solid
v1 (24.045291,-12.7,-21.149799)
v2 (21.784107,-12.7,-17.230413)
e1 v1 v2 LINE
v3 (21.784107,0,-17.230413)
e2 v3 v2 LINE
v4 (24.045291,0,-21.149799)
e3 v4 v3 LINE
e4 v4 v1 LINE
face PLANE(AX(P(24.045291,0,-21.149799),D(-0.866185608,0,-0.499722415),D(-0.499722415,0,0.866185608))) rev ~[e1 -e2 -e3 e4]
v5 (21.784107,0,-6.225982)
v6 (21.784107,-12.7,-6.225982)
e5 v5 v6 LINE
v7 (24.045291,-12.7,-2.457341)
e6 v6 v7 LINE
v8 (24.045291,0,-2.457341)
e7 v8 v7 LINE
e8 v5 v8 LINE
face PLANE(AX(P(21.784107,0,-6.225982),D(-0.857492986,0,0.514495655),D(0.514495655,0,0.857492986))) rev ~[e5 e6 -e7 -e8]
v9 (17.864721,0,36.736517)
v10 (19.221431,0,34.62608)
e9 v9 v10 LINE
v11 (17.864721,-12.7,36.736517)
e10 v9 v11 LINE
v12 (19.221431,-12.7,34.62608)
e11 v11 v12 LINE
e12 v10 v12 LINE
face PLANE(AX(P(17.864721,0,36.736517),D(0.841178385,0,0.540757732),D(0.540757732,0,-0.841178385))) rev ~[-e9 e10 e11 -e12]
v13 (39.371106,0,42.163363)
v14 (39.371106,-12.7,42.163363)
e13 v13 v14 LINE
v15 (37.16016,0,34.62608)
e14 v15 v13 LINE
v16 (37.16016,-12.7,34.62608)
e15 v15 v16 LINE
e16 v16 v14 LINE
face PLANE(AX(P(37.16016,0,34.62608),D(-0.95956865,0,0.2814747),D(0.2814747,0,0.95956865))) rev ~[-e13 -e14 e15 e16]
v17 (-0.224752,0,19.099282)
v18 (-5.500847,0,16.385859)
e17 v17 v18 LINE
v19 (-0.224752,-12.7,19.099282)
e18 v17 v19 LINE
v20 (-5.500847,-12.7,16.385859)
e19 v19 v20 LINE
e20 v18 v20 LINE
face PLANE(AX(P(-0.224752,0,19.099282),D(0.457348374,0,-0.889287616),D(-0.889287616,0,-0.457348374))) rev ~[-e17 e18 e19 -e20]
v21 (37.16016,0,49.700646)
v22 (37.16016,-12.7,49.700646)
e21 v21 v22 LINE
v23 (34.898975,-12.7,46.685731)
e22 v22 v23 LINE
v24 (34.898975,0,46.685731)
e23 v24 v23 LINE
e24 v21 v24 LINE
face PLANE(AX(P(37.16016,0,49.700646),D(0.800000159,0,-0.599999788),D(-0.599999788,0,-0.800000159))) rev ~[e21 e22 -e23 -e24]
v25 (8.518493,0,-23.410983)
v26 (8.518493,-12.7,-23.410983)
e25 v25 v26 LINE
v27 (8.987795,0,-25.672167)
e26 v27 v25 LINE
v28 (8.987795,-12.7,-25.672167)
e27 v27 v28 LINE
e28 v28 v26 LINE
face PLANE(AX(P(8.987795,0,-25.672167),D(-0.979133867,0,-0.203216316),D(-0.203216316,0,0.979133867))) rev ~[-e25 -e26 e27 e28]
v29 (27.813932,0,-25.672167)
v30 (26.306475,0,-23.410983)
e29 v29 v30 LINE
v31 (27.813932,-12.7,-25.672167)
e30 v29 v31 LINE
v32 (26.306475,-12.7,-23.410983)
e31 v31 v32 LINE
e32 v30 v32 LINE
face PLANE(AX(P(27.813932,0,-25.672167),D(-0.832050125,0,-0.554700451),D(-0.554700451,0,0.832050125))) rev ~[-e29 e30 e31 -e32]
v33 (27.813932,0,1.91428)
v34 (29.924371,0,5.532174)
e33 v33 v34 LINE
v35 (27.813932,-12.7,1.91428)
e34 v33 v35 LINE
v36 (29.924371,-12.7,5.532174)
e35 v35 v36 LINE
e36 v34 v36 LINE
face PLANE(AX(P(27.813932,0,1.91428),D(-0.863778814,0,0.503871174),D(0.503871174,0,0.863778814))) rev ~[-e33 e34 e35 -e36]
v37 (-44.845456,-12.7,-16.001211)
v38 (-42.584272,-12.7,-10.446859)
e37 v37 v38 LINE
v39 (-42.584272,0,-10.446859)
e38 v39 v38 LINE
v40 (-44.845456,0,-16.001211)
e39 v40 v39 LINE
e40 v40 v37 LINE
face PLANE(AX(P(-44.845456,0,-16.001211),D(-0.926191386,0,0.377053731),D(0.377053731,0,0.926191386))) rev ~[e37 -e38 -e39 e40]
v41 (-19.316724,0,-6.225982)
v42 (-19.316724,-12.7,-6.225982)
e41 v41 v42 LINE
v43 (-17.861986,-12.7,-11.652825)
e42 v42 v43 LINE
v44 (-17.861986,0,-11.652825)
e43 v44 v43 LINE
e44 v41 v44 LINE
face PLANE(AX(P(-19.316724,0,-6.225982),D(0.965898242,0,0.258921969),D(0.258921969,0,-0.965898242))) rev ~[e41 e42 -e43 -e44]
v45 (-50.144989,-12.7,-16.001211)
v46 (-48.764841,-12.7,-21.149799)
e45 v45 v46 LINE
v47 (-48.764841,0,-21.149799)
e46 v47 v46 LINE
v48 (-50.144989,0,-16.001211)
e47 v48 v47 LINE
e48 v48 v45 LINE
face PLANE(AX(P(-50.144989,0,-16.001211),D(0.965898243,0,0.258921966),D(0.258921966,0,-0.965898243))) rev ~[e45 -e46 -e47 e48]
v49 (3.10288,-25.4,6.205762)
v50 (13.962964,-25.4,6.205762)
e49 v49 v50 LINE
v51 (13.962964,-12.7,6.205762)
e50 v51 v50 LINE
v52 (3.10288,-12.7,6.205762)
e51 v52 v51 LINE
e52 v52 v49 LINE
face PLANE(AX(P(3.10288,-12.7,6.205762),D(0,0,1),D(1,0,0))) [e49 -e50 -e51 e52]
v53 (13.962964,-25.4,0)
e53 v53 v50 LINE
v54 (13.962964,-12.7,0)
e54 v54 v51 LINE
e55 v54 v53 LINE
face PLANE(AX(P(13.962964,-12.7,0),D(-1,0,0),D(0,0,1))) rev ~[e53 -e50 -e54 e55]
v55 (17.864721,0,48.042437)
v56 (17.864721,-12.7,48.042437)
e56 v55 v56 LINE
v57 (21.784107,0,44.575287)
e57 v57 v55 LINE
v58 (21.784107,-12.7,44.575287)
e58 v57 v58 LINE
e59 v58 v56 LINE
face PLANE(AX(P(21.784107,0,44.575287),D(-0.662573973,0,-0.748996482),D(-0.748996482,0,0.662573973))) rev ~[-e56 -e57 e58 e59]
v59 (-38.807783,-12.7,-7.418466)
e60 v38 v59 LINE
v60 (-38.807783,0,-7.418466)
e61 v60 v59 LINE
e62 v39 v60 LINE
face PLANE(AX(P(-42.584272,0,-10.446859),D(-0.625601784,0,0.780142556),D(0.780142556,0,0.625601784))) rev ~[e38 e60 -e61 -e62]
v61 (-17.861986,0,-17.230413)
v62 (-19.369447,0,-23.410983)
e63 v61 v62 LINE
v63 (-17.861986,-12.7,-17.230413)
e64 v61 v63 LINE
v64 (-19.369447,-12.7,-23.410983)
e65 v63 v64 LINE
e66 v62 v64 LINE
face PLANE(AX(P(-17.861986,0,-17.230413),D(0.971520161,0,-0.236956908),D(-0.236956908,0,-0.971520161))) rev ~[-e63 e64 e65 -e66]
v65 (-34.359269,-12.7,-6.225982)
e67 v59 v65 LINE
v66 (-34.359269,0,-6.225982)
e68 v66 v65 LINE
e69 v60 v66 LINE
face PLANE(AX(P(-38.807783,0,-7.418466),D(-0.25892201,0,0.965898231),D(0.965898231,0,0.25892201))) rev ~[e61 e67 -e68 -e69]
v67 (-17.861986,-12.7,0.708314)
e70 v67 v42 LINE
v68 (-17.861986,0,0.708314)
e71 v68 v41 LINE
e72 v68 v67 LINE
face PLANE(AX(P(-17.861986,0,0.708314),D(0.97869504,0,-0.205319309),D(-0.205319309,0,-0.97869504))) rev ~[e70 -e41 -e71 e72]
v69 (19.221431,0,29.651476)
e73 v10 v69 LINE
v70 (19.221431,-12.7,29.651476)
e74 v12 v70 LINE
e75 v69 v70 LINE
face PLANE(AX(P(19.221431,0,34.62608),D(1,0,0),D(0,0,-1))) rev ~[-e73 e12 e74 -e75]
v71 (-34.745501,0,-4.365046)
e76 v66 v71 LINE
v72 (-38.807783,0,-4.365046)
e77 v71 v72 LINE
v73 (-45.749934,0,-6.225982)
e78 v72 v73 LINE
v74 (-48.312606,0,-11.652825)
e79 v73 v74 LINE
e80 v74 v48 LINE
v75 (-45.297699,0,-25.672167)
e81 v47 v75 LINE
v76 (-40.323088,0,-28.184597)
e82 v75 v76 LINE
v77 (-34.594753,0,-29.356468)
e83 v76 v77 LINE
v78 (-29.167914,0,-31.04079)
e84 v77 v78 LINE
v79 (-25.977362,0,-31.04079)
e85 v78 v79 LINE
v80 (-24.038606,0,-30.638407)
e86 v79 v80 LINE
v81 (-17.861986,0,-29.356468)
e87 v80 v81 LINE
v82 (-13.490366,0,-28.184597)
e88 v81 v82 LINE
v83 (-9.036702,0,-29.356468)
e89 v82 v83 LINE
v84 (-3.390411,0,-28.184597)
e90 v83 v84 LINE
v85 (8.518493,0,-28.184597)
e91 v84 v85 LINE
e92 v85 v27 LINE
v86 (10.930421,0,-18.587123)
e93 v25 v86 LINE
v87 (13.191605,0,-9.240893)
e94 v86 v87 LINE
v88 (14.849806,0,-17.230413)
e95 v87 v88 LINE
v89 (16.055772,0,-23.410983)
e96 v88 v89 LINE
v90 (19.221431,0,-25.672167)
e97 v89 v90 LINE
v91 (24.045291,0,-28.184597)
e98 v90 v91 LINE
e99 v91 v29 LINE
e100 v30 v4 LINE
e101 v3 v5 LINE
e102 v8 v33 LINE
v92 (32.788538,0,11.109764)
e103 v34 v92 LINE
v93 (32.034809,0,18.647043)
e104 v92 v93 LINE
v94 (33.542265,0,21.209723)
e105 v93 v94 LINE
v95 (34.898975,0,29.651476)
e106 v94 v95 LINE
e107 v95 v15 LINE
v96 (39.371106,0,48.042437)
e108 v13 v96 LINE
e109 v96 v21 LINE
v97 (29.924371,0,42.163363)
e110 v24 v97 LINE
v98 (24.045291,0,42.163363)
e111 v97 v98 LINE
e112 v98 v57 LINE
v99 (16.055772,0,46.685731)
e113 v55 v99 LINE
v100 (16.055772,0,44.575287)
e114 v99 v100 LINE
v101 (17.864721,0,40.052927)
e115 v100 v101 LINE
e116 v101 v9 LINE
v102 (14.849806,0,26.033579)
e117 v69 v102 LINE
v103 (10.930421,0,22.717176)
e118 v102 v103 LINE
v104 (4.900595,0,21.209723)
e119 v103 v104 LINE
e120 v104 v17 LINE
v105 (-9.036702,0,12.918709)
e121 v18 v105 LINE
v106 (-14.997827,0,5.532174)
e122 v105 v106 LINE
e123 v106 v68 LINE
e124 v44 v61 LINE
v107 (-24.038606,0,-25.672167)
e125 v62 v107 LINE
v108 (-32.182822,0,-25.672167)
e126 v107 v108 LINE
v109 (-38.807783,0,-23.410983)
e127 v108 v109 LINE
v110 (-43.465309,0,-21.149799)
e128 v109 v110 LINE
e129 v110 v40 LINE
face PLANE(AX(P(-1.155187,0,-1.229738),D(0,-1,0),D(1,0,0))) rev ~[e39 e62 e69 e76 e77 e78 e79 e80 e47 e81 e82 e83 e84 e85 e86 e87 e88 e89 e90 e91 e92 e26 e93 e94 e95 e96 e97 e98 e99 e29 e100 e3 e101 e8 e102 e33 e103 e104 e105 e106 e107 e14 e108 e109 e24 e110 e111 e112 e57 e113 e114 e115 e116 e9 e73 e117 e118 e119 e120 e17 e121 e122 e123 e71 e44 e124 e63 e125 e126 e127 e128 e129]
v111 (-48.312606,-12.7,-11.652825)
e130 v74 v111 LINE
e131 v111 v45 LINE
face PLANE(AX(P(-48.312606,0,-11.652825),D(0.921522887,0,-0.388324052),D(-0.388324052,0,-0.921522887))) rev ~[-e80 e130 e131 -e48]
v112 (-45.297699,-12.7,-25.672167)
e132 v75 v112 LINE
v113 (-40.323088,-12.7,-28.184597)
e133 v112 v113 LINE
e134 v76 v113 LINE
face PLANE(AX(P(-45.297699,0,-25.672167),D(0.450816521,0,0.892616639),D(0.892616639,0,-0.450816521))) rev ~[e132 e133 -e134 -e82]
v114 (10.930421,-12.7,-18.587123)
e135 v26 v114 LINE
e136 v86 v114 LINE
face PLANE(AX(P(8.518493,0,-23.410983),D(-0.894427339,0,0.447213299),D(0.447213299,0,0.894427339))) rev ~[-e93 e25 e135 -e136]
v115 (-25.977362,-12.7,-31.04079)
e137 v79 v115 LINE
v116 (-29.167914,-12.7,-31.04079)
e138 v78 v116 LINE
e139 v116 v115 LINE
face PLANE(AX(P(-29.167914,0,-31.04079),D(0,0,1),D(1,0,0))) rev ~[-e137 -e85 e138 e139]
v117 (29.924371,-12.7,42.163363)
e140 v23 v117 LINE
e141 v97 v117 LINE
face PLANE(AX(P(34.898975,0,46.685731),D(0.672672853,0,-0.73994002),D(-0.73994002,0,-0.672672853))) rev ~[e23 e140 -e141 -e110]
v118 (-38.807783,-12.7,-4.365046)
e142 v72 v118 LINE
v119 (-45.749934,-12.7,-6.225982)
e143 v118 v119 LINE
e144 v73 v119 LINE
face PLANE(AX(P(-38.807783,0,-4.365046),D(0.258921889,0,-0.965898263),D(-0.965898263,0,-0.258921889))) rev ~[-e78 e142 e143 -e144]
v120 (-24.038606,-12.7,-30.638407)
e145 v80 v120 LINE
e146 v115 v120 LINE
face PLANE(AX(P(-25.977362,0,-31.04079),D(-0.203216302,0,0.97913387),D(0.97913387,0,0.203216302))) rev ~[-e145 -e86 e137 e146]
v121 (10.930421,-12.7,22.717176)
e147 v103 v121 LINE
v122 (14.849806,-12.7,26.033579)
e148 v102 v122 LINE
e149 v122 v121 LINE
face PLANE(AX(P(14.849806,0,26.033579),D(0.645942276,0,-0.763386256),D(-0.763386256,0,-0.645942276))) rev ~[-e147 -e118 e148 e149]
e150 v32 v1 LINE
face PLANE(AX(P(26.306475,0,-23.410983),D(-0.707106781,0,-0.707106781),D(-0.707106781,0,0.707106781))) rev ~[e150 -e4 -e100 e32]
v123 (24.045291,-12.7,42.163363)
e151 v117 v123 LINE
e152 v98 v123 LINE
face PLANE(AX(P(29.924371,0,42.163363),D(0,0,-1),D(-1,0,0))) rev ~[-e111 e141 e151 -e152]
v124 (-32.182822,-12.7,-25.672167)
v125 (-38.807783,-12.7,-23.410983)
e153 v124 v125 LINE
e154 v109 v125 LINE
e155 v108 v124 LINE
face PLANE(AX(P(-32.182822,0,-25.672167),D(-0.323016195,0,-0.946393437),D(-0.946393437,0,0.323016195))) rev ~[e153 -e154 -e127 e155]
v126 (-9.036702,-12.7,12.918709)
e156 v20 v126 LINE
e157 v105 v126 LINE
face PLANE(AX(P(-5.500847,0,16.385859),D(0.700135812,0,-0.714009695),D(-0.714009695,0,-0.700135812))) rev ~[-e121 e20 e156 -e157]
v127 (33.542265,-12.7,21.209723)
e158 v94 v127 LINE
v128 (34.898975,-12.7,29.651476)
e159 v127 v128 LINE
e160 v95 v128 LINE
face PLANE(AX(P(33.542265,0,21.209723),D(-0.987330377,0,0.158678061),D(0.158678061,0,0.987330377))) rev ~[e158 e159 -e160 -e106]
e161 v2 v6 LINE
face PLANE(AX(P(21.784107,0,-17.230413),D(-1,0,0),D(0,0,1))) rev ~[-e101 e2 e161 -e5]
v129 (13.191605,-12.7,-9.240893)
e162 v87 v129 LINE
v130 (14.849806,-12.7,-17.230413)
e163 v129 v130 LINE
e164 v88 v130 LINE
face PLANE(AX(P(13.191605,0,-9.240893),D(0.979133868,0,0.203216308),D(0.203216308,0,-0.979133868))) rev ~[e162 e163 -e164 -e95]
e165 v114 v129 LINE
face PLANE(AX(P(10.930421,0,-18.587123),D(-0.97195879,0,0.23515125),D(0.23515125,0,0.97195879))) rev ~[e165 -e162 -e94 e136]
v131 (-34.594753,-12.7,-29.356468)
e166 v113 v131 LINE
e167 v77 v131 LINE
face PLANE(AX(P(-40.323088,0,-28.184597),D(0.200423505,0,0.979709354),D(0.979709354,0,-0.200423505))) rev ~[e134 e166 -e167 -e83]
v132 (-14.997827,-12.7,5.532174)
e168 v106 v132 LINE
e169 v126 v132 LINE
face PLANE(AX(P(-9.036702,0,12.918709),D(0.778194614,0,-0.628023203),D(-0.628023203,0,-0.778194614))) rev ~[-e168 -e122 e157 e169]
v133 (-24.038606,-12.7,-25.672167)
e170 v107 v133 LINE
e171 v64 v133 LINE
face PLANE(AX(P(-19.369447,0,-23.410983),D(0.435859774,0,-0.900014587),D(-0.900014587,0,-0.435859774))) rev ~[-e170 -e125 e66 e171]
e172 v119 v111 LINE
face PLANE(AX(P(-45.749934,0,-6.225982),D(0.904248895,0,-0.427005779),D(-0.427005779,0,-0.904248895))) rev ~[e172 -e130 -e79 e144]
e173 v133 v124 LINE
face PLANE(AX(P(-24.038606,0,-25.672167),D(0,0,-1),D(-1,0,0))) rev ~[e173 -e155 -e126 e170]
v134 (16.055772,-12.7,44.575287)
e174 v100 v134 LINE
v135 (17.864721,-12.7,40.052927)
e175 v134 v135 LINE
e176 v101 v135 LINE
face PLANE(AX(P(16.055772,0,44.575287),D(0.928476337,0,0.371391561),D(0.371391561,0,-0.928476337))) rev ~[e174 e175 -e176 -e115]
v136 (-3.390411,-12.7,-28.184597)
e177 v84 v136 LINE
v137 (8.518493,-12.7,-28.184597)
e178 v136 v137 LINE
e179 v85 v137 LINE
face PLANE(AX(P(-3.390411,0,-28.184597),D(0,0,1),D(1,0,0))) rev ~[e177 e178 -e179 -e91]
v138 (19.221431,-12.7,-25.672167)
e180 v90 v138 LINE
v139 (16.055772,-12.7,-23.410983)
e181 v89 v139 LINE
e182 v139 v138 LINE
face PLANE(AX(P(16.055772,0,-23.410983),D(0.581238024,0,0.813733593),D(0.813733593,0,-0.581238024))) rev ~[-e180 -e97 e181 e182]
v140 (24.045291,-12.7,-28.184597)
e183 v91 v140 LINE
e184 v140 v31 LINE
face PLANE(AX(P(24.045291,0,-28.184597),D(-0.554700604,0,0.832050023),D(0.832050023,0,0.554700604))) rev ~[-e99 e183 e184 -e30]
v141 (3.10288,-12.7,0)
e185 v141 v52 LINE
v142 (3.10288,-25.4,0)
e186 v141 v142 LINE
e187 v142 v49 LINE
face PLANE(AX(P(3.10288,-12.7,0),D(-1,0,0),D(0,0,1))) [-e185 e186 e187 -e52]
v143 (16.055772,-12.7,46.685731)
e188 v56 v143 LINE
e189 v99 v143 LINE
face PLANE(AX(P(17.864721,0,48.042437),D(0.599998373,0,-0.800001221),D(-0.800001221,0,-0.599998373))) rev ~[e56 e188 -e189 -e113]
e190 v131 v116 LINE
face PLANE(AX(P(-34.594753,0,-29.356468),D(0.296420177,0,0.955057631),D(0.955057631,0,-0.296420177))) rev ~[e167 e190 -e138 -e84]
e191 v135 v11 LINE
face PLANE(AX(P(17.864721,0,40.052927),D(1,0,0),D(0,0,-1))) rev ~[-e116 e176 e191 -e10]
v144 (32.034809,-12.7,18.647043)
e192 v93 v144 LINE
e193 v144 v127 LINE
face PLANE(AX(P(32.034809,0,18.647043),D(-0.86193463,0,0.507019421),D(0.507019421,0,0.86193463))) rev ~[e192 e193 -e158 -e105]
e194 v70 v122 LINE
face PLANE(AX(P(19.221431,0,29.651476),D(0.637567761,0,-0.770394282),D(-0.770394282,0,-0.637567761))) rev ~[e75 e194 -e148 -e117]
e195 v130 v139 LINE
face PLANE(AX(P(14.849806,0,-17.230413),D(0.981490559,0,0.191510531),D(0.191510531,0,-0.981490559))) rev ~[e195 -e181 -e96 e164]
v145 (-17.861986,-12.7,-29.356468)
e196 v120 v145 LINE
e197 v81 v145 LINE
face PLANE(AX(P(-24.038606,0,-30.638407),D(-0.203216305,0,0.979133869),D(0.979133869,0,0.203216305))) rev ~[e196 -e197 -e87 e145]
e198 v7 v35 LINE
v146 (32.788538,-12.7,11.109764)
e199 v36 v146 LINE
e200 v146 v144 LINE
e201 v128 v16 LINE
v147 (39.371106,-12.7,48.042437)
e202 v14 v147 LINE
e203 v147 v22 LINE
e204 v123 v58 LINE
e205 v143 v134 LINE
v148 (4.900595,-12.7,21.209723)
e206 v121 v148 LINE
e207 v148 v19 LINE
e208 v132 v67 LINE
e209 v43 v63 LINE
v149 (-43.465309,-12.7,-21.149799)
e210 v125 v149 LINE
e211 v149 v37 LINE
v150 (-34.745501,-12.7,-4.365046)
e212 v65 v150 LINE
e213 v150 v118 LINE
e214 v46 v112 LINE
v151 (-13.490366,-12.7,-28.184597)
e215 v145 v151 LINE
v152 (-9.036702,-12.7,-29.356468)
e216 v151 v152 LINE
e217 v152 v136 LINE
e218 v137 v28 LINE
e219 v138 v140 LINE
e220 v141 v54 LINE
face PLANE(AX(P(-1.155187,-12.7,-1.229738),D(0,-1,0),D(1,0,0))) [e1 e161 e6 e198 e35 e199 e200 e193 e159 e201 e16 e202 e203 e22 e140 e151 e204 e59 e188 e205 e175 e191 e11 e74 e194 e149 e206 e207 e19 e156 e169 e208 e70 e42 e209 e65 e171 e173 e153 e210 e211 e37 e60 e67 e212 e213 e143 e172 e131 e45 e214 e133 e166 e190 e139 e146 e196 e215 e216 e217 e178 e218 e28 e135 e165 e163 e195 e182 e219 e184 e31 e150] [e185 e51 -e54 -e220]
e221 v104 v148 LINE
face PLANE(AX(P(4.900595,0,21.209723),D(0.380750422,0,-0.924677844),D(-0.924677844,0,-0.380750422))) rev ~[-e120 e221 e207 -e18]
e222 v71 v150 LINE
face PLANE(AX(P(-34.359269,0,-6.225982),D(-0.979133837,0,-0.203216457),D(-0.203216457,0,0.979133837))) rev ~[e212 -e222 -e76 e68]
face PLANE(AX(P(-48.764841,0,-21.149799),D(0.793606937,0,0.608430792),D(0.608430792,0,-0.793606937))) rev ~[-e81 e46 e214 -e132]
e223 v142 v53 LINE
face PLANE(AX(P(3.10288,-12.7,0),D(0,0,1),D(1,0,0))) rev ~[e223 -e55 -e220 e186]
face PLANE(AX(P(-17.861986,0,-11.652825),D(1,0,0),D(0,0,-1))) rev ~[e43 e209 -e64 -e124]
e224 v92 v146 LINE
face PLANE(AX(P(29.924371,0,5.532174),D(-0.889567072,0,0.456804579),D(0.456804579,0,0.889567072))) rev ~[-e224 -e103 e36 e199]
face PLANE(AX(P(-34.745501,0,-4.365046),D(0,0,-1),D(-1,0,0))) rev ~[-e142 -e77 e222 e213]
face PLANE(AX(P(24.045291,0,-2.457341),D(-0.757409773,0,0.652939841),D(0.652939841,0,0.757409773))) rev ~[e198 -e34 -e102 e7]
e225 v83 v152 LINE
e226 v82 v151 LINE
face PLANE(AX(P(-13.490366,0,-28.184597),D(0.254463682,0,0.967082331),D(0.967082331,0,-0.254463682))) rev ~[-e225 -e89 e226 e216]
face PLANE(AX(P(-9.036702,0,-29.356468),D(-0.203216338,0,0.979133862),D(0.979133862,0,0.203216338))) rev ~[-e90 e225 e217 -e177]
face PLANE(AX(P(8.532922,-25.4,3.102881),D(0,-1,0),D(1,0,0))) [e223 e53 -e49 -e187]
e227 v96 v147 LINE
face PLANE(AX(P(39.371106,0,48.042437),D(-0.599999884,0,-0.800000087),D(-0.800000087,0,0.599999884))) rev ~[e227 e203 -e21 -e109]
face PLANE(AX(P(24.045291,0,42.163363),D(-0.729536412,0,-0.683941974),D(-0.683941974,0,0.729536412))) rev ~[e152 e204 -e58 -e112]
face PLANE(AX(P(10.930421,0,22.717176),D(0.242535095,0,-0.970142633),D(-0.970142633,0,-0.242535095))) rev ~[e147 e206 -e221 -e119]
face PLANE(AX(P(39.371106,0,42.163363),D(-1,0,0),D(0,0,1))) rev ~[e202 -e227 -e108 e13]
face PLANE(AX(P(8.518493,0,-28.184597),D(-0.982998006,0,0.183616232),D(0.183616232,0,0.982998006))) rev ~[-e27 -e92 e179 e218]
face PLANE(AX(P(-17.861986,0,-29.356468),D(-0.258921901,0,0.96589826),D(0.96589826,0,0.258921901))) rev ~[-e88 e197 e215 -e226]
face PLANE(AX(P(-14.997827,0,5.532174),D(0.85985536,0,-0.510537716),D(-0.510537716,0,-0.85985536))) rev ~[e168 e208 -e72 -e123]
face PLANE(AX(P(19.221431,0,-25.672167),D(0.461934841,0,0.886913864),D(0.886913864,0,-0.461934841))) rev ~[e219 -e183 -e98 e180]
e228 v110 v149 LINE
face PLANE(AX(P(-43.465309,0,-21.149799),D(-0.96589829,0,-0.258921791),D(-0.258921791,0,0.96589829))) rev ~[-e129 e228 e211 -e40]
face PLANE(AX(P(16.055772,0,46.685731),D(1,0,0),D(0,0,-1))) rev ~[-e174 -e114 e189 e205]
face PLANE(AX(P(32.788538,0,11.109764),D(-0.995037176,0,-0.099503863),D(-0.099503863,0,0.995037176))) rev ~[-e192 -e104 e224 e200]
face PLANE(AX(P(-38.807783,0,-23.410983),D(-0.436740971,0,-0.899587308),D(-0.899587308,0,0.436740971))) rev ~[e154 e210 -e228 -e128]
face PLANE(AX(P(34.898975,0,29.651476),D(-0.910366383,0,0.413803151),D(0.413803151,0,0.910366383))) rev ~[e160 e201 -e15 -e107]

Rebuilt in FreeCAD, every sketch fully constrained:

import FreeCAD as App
import Part
import Sketcher
from FreeCAD import Vector
Q = App.Units.Quantity

doc = App.newDocument("Part")
body = doc.addObject("PartDesign::Body", "Body")

# Sketch on XZ plane
sketch1 = doc.addObject("Sketcher::SketchObject", "Sketch")
body.addObject(sketch1)
sketch1.AttachmentSupport = (doc.XZ_Plane, [""])
sketch1.MapMode = "FlatFace"
sketch1.addGeometry(Part.LineSegment(Vector(10.930421, 22.717176, 0), Vector(4.900595, 21.209723, 0)), False)
sketch1.addGeometry(Part.LineSegment(Vector(4.900595, 21.209723, 0), Vector(-0.224752, 19.099282, 0)), False)
sketch1.addGeometry(Part.LineSegment(Vector(-0.224752, 19.099282, 0), Vector(-5.500847, 16.385859, 0)), False)
sketch1.addGeometry(Part.LineSegment(Vector(-5.500847, 16.385859, 0), Vector(-9.036702, 12.918709, 0)), False)
sketch1.addGeometry(Part.LineSegment(Vector(-9.036702, 12.918709, 0), Vector(-14.997827, 5.532174, 0)), False)
sketch1.addGeometry(Part.LineSegment(Vector(-14.997827, 5.532174, 0), Vector(-17.861986, 0.708314, 0)), False)
sketch1.addGeometry(Part.LineSegment(Vector(-17.861986, 0.708314, 0), Vector(-19.316724, -6.225982, 0)), False)
sketch1.addGeometry(Part.LineSegment(Vector(-19.316724, -6.225982, 0), Vector(-17.861986, -11.652825, 0)), False)
sketch1.addGeometry(Part.LineSegment(Vector(-17.861986, -11.652825, 0), Vector(-17.861986, -17.230413, 0)), False)
sketch1.addGeometry(Part.LineSegment(Vector(-17.861986, -17.230413, 0), Vector(-19.369447, -23.410983, 0)), False)
sketch1.addGeometry(Part.LineSegment(Vector(-19.369447, -23.410983, 0), Vector(-24.038606, -25.672167, 0)), False)
sketch1.addGeometry(Part.LineSegment(Vector(-24.038606, -25.672167, 0), Vector(-32.182822, -25.672167, 0)), False)
sketch1.addGeometry(Part.LineSegment(Vector(-32.182822, -25.672167, 0), Vector(-38.807783, -23.410983, 0)), False)
sketch1.addGeometry(Part.LineSegment(Vector(-38.807783, -23.410983, 0), Vector(-43.465309, -21.149799, 0)), False)
sketch1.addGeometry(Part.LineSegment(Vector(-43.465309, -21.149799, 0), Vector(-44.845456, -16.001211, 0)), False)
sketch1.addGeometry(Part.LineSegment(Vector(-44.845456, -16.001211, 0), Vector(-42.584272, -10.446859, 0)), False)
sketch1.addGeometry(Part.LineSegment(Vector(-42.584272, -10.446859, 0), Vector(-38.807783, -7.418466, 0)), False)
sketch1.addGeometry(Part.LineSegment(Vector(-38.807783, -7.418466, 0), Vector(-34.359269, -6.225982, 0)), False)
sketch1.addGeometry(Part.LineSegment(Vector(-34.359269, -6.225982, 0), Vector(-34.745501, -4.365046, 0)), False)
sketch1.addGeometry(Part.LineSegment(Vector(-34.745501, -4.365046, 0), Vector(-38.807783, -4.365046, 0)), False)
sketch1.addGeometry(Part.LineSegment(Vector(-38.807783, -4.365046, 0), Vector(-45.749934, -6.225982, 0)), False)
sketch1.addGeometry(Part.LineSegment(Vector(-45.749934, -6.225982, 0), Vector(-48.312606, -11.652825, 0)), False)
sketch1.addGeometry(Part.LineSegment(Vector(-48.312606, -11.652825, 0), Vector(-50.144989, -16.001211, 0)), False)
sketch1.addGeometry(Part.LineSegment(Vector(-50.144989, -16.001211, 0), Vector(-48.764841, -21.149799, 0)), False)
sketch1.addGeometry(Part.LineSegment(Vector(-48.764841, -21.149799, 0), Vector(-45.297699, -25.672167, 0)), False)
sketch1.addGeometry(Part.LineSegment(Vector(-45.297699, -25.672167, 0), Vector(-40.323088, -28.184597, 0)), False)
sketch1.addGeometry(Part.LineSegment(Vector(-40.323088, -28.184597, 0), Vector(-34.594753, -29.356468, 0)), False)
sketch1.addGeometry(Part.LineSegment(Vector(-34.594753, -29.356468, 0), Vector(-29.167914, -31.04079, 0)), False)
sketch1.addGeometry(Part.LineSegment(Vector(-29.167914, -31.04079, 0), Vector(-25.977362, -31.04079, 0)), False)
sketch1.addGeometry(Part.LineSegment(Vector(-25.977362, -31.04079, 0), Vector(-24.038606, -30.638407, 0)), False)
sketch1.addGeometry(Part.LineSegment(Vector(-24.038606, -30.638407, 0), Vector(-17.861986, -29.356468, 0)), False)
sketch1.addGeometry(Part.LineSegment(Vector(-17.861986, -29.356468, 0), Vector(-13.490366, -28.184597, 0)), False)
sketch1.addGeometry(Part.LineSegment(Vector(-13.490366, -28.184597, 0), Vector(-9.036702, -29.356468, 0)), False)
sketch1.addGeometry(Part.LineSegment(Vector(-9.036702, -29.356468, 0), Vector(-3.390411, -28.184597, 0)), False)
sketch1.addGeometry(Part.LineSegment(Vector(-3.390411, -28.184597, 0), Vector(8.518493, -28.184597, 0)), False)
sketch1.addGeometry(Part.LineSegment(Vector(8.518493, -28.184597, 0), Vector(8.987795, -25.672167, 0)), False)
sketch1.addGeometry(Part.LineSegment(Vector(8.987795, -25.672167, 0), Vector(8.518493, -23.410983, 0)), False)
sketch1.addGeometry(Part.LineSegment(Vector(8.518493, -23.410983, 0), Vector(10.930421, -18.587123, 0)), False)
sketch1.addGeometry(Part.LineSegment(Vector(10.930421, -18.587123, 0), Vector(13.191605, -9.240893, 0)), False)
sketch1.addGeometry(Part.LineSegment(Vector(13.191605, -9.240893, 0), Vector(14.849806, -17.230413, 0)), False)
sketch1.addGeometry(Part.LineSegment(Vector(14.849806, -17.230413, 0), Vector(16.055772, -23.410983, 0)), False)
sketch1.addGeometry(Part.LineSegment(Vector(16.055772, -23.410983, 0), Vector(19.221431, -25.672167, 0)), False)
sketch1.addGeometry(Part.LineSegment(Vector(19.221431, -25.672167, 0), Vector(24.045291, -28.184597, 0)), False)
sketch1.addGeometry(Part.LineSegment(Vector(24.045291, -28.184597, 0), Vector(27.813932, -25.672167, 0)), False)
sketch1.addGeometry(Part.LineSegment(Vector(27.813932, -25.672167, 0), Vector(26.306475, -23.410983, 0)), False)
sketch1.addGeometry(Part.LineSegment(Vector(26.306475, -23.410983, 0), Vector(24.045291, -21.149799, 0)), False)
sketch1.addGeometry(Part.LineSegment(Vector(24.045291, -21.149799, 0), Vector(21.784107, -17.230413, 0)), False)
sketch1.addGeometry(Part.LineSegment(Vector(21.784107, -17.230413, 0), Vector(21.784107, -6.225982, 0)), False)
sketch1.addGeometry(Part.LineSegment(Vector(21.784107, -6.225982, 0), Vector(24.045291, -2.457341, 0)), False)
sketch1.addGeometry(Part.LineSegment(Vector(24.045291, -2.457341, 0), Vector(27.813932, 1.91428, 0)), False)
sketch1.addGeometry(Part.LineSegment(Vector(27.813932, 1.91428, 0), Vector(29.924371, 5.532174, 0)), False)
sketch1.addGeometry(Part.LineSegment(Vector(29.924371, 5.532174, 0), Vector(32.788538, 11.109764, 0)), False)
sketch1.addGeometry(Part.LineSegment(Vector(32.788538, 11.109764, 0), Vector(32.034809, 18.647043, 0)), False)
sketch1.addGeometry(Part.LineSegment(Vector(32.034809, 18.647043, 0), Vector(33.542265, 21.209723, 0)), False)
sketch1.addGeometry(Part.LineSegment(Vector(33.542265, 21.209723, 0), Vector(34.898975, 29.651476, 0)), False)
sketch1.addGeometry(Part.LineSegment(Vector(34.898975, 29.651476, 0), Vector(37.16016, 34.62608, 0)), False)
sketch1.addGeometry(Part.LineSegment(Vector(37.16016, 34.62608, 0), Vector(39.371106, 42.163363, 0)), False)
sketch1.addGeometry(Part.LineSegment(Vector(39.371106, 42.163363, 0), Vector(39.371106, 48.042437, 0)), False)
sketch1.addGeometry(Part.LineSegment(Vector(39.371106, 48.042437, 0), Vector(37.16016, 49.700646, 0)), False)
sketch1.addGeometry(Part.LineSegment(Vector(37.16016, 49.700646, 0), Vector(34.898975, 46.685731, 0)), False)
sketch1.addGeometry(Part.LineSegment(Vector(34.898975, 46.685731, 0), Vector(29.924371, 42.163363, 0)), False)
sketch1.addGeometry(Part.LineSegment(Vector(29.924371, 42.163363, 0), Vector(24.045291, 42.163363, 0)), False)
sketch1.addGeometry(Part.LineSegment(Vector(24.045291, 42.163363, 0), Vector(21.784107, 44.575287, 0)), False)
sketch1.addGeometry(Part.LineSegment(Vector(21.784107, 44.575287, 0), Vector(17.864721, 48.042437, 0)), False)
sketch1.addGeometry(Part.LineSegment(Vector(17.864721, 48.042437, 0), Vector(16.055772, 46.685731, 0)), False)
sketch1.addGeometry(Part.LineSegment(Vector(16.055772, 46.685731, 0), Vector(16.055772, 44.575287, 0)), False)
sketch1.addGeometry(Part.LineSegment(Vector(16.055772, 44.575287, 0), Vector(17.864721, 40.052927, 0)), False)
sketch1.addGeometry(Part.LineSegment(Vector(17.864721, 40.052927, 0), Vector(17.864721, 36.736517, 0)), False)
sketch1.addGeometry(Part.LineSegment(Vector(17.864721, 36.736517, 0), Vector(19.221431, 34.62608, 0)), False)
sketch1.addGeometry(Part.LineSegment(Vector(19.221431, 34.62608, 0), Vector(19.221431, 29.651476, 0)), False)
sketch1.addGeometry(Part.LineSegment(Vector(19.221431, 29.651476, 0), Vector(14.849806, 26.033579, 0)), False)
sketch1.addGeometry(Part.LineSegment(Vector(14.849806, 26.033579, 0), Vector(10.930421, 22.717176, 0)), False)
sketch1.addConstraint(Sketcher.Constraint("Coincident", 0, 2, 1, 1))
sketch1.addConstraint(Sketcher.Constraint("Coincident", 1, 2, 2, 1))
sketch1.addConstraint(Sketcher.Constraint("Coincident", 2, 2, 3, 1))
sketch1.addConstraint(Sketcher.Constraint("Coincident", 3, 2, 4, 1))
sketch1.addConstraint(Sketcher.Constraint("Coincident", 4, 2, 5, 1))
sketch1.addConstraint(Sketcher.Constraint("Coincident", 5, 2, 6, 1))
sketch1.addConstraint(Sketcher.Constraint("Coincident", 6, 2, 7, 1))
sketch1.addConstraint(Sketcher.Constraint("Coincident", 7, 2, 8, 1))
sketch1.addConstraint(Sketcher.Constraint("Coincident", 8, 2, 9, 1))
sketch1.addConstraint(Sketcher.Constraint("Coincident", 9, 2, 10, 1))
sketch1.addConstraint(Sketcher.Constraint("Coincident", 10, 2, 11, 1))
sketch1.addConstraint(Sketcher.Constraint("Coincident", 11, 2, 12, 1))
sketch1.addConstraint(Sketcher.Constraint("Coincident", 12, 2, 13, 1))
sketch1.addConstraint(Sketcher.Constraint("Coincident", 13, 2, 14, 1))
sketch1.addConstraint(Sketcher.Constraint("Coincident", 14, 2, 15, 1))
sketch1.addConstraint(Sketcher.Constraint("Coincident", 15, 2, 16, 1))
sketch1.addConstraint(Sketcher.Constraint("Coincident", 16, 2, 17, 1))
sketch1.addConstraint(Sketcher.Constraint("Coincident", 17, 2, 18, 1))
sketch1.addConstraint(Sketcher.Constraint("Coincident", 18, 2, 19, 1))
sketch1.addConstraint(Sketcher.Constraint("Coincident", 19, 2, 20, 1))
sketch1.addConstraint(Sketcher.Constraint("Coincident", 20, 2, 21, 1))
sketch1.addConstraint(Sketcher.Constraint("Coincident", 21, 2, 22, 1))
sketch1.addConstraint(Sketcher.Constraint("Coincident", 22, 2, 23, 1))
sketch1.addConstraint(Sketcher.Constraint("Coincident", 23, 2, 24, 1))
sketch1.addConstraint(Sketcher.Constraint("Coincident", 24, 2, 25, 1))
sketch1.addConstraint(Sketcher.Constraint("Coincident", 25, 2, 26, 1))
sketch1.addConstraint(Sketcher.Constraint("Coincident", 26, 2, 27, 1))
sketch1.addConstraint(Sketcher.Constraint("Coincident", 27, 2, 28, 1))
sketch1.addConstraint(Sketcher.Constraint("Coincident", 28, 2, 29, 1))
sketch1.addConstraint(Sketcher.Constraint("Coincident", 29, 2, 30, 1))
sketch1.addConstraint(Sketcher.Constraint("Coincident", 30, 2, 31, 1))
sketch1.addConstraint(Sketcher.Constraint("Coincident", 31, 2, 32, 1))
sketch1.addConstraint(Sketcher.Constraint("Coincident", 32, 2, 33, 1))
sketch1.addConstraint(Sketcher.Constraint("Coincident", 33, 2, 34, 1))
sketch1.addConstraint(Sketcher.Constraint("Coincident", 34, 2, 35, 1))
sketch1.addConstraint(Sketcher.Constraint("Coincident", 35, 2, 36, 1))
sketch1.addConstraint(Sketcher.Constraint("Coincident", 36, 2, 37, 1))
sketch1.addConstraint(Sketcher.Constraint("Coincident", 37, 2, 38, 1))
sketch1.addConstraint(Sketcher.Constraint("Coincident", 38, 2, 39, 1))
sketch1.addConstraint(Sketcher.Constraint("Coincident", 39, 2, 40, 1))
sketch1.addConstraint(Sketcher.Constraint("Coincident", 40, 2, 41, 1))
sketch1.addConstraint(Sketcher.Constraint("Coincident", 41, 2, 42, 1))
sketch1.addConstraint(Sketcher.Constraint("Coincident", 42, 2, 43, 1))
sketch1.addConstraint(Sketcher.Constraint("Coincident", 43, 2, 44, 1))
sketch1.addConstraint(Sketcher.Constraint("Coincident", 44, 2, 45, 1))
sketch1.addConstraint(Sketcher.Constraint("Coincident", 45, 2, 46, 1))
sketch1.addConstraint(Sketcher.Constraint("Coincident", 46, 2, 47, 1))
sketch1.addConstraint(Sketcher.Constraint("Coincident", 47, 2, 48, 1))
sketch1.addConstraint(Sketcher.Constraint("Coincident", 48, 2, 49, 1))
sketch1.addConstraint(Sketcher.Constraint("Coincident", 49, 2, 50, 1))
sketch1.addConstraint(Sketcher.Constraint("Coincident", 50, 2, 51, 1))
sketch1.addConstraint(Sketcher.Constraint("Coincident", 51, 2, 52, 1))
sketch1.addConstraint(Sketcher.Constraint("Coincident", 52, 2, 53, 1))
sketch1.addConstraint(Sketcher.Constraint("Coincident", 53, 2, 54, 1))
sketch1.addConstraint(Sketcher.Constraint("Coincident", 54, 2, 55, 1))
sketch1.addConstraint(Sketcher.Constraint("Coincident", 55, 2, 56, 1))
sketch1.addConstraint(Sketcher.Constraint("Coincident", 56, 2, 57, 1))
sketch1.addConstraint(Sketcher.Constraint("Coincident", 57, 2, 58, 1))
sketch1.addConstraint(Sketcher.Constraint("Coincident", 58, 2, 59, 1))
sketch1.addConstraint(Sketcher.Constraint("Coincident", 59, 2, 60, 1))
sketch1.addConstraint(Sketcher.Constraint("Coincident", 60, 2, 61, 1))
sketch1.addConstraint(Sketcher.Constraint("Coincident", 61, 2, 62, 1))
sketch1.addConstraint(Sketcher.Constraint("Coincident", 62, 2, 63, 1))
sketch1.addConstraint(Sketcher.Constraint("Coincident", 63, 2, 64, 1))
sketch1.addConstraint(Sketcher.Constraint("Coincident", 64, 2, 65, 1))
sketch1.addConstraint(Sketcher.Constraint("Coincident", 65, 2, 66, 1))
sketch1.addConstraint(Sketcher.Constraint("Coincident", 66, 2, 67, 1))
sketch1.addConstraint(Sketcher.Constraint("Coincident", 67, 2, 68, 1))
sketch1.addConstraint(Sketcher.Constraint("Coincident", 68, 2, 69, 1))
sketch1.addConstraint(Sketcher.Constraint("Coincident", 69, 2, 70, 1))
sketch1.addConstraint(Sketcher.Constraint("Coincident", 70, 2, 71, 1))
sketch1.addConstraint(Sketcher.Constraint("Coincident", 71, 2, 0, 1))
sketch1.addConstraint(Sketcher.Constraint("Vertical", 8))
sketch1.addConstraint(Sketcher.Constraint("Horizontal", 11))
sketch1.addConstraint(Sketcher.Constraint("Horizontal", 19))
sketch1.addConstraint(Sketcher.Constraint("Horizontal", 28))
sketch1.addConstraint(Sketcher.Constraint("Horizontal", 34))
sketch1.addConstraint(Sketcher.Constraint("Vertical", 47))
sketch1.addConstraint(Sketcher.Constraint("Vertical", 57))
sketch1.addConstraint(Sketcher.Constraint("Horizontal", 61))
sketch1.addConstraint(Sketcher.Constraint("Vertical", 65))
sketch1.addConstraint(Sketcher.Constraint("Vertical", 67))
sketch1.addConstraint(Sketcher.Constraint("Vertical", 69))
sketch1.addConstraint(Sketcher.Constraint("Distance", 0, Q("6.215402 mm")))
sketch1.addConstraint(Sketcher.Constraint("Distance", 24, Q("5.698499 mm")))
sketch1.addConstraint(Sketcher.Constraint("DistanceX", 61, 2, 61, 1, Q("5.87908 mm")))
sketch1.addConstraint(Sketcher.Constraint("DistanceY", 47, 1, 47, 2, Q("11.004431 mm")))
sketch1.addConstraint(Sketcher.Constraint("DistanceY", 67, 2, 67, 1, Q("3.31641 mm")))
sketch1.addConstraint(Sketcher.Constraint("DistanceY", 13, 2, -1, 1, Q("21.149799 mm")))
sketch1.addConstraint(Sketcher.Constraint("DistanceX", 18, 2, -1, 1, Q("34.745501 mm")))
sketch1.addConstraint(Sketcher.Constraint("DistanceY", 23, 2, -1, 1, Q("21.149799 mm")))
sketch1.addConstraint(Sketcher.Constraint("DistanceX", 24, 2, -1, 1, Q("45.297699 mm")))
sketch1.addConstraint(Sketcher.Constraint("DistanceY", 45, 2, -1, 1, Q("21.149799 mm")))
sketch1.addConstraint(Sketcher.Constraint("Distance", 3, Q("4.952111 mm")))
sketch1.addConstraint(Sketcher.Constraint("Distance", 7, Q("5.618442 mm")))
sketch1.addConstraint(Sketcher.Constraint("Distance", 9, Q("6.361752 mm")))
sketch1.addConstraint(Sketcher.Constraint("Distance", 10, Q("5.18787 mm")))
sketch1.addConstraint(Sketcher.Constraint("Distance", 12, Q("7.000219 mm")))
sketch1.addConstraint(Sketcher.Constraint("Distance", 15, Q("5.996981 mm")))
sketch1.addConstraint(Sketcher.Constraint("Distance", 20, Q("7.187249 mm")))
sketch1.addConstraint(Sketcher.Constraint("Distance", 27, Q("5.682211 mm")))
sketch1.addConstraint(Sketcher.Constraint("Distance", 30, Q("6.308249 mm")))
sketch1.addConstraint(Sketcher.Constraint("Distance", 32, Q("4.605258 mm")))
sketch1.addConstraint(Sketcher.Constraint("Distance", 33, Q("5.766618 mm")))
sketch1.addConstraint(Sketcher.Constraint("Distance", 36, Q("2.309372 mm")))
sketch1.addConstraint(Sketcher.Constraint("Distance", 37, Q("5.393239 mm")))
sketch1.addConstraint(Sketcher.Constraint("Distance", 38, Q("9.615871 mm")))
sketch1.addConstraint(Sketcher.Constraint("Distance", 41, Q("3.890289 mm")))
sketch1.addConstraint(Sketcher.Constraint("Distance", 46, Q("4.52488 mm")))
sketch1.addConstraint(Sketcher.Constraint("Distance", 50, Q("4.18845 mm")))
sketch1.addConstraint(Sketcher.Constraint("Distance", 52, Q("7.574872 mm")))
sketch1.addConstraint(Sketcher.Constraint("Distance", 54, Q("8.550079 mm")))
sketch1.addConstraint(Sketcher.Constraint("Distance", 63, Q("5.23285 mm")))
sketch1.addConstraint(Sketcher.Constraint("Distance", 70, Q("5.674529 mm")))
sketch1.addConstraint(Sketcher.Constraint("Distance", 71, Q("5.13421 mm")))
sketch1.addConstraint(Sketcher.Constraint("DistanceX", 11, 2, 11, 1, Q("8.144216 mm")))
sketch1.addConstraint(Sketcher.Constraint("DistanceX", 19, 2, 19, 1, Q("4.062282 mm")))
sketch1.addConstraint(Sketcher.Constraint("DistanceX", 28, 1, 28, 2, Q("3.190552 mm")))
sketch1.addConstraint(Sketcher.Constraint("DistanceX", 34, 1, 34, 2, Q("11.908904 mm")))
sketch1.addConstraint(Sketcher.Constraint("DistanceY", 8, 2, 8, 1, Q("5.577588 mm")))
sketch1.addConstraint(Sketcher.Constraint("DistanceY", 57, 1, 57, 2, Q("5.879074 mm")))
sketch1.addConstraint(Sketcher.Constraint("DistanceY", 65, 2, 65, 1, Q("2.110444 mm")))
sketch1.addConstraint(Sketcher.Constraint("DistanceY", 69, 2, 69, 1, Q("4.974604 mm")))
sketch1.addConstraint(Sketcher.Constraint("DistanceY", -1, 1, 1, 2, Q("19.099282 mm")))
sketch1.addConstraint(Sketcher.Constraint("DistanceY", -1, 1, 2, 2, Q("16.385859 mm")))
sketch1.addConstraint(Sketcher.Constraint("DistanceY", -1, 1, 3, 2, Q("12.918709 mm")))
sketch1.addConstraint(Sketcher.Constraint("DistanceX", 13, 2, -1, 1, Q("43.465309 mm")))
sketch1.addConstraint(Sketcher.Constraint("DistanceY", 14, 2, -1, 1, Q("16.001211 mm")))
sketch1.addConstraint(Sketcher.Constraint("DistanceY", 15, 2, -1, 1, Q("10.446859 mm")))
sketch1.addConstraint(Sketcher.Constraint("DistanceX", 17, 2, -1, 1, Q("34.359269 mm")))
sketch1.addConstraint(Sketcher.Constraint("DistanceX", 22, 2, -1, 1, Q("50.144989 mm")))
sketch1.addConstraint(Sketcher.Constraint("DistanceY", 22, 2, -1, 1, Q("16.001211 mm")))
sketch1.addConstraint(Sketcher.Constraint("DistanceX", 23, 2, -1, 1, Q("48.764841 mm")))
sketch1.addConstraint(Sketcher.Constraint("DistanceY", 27, 2, -1, 1, Q("31.04079 mm")))
sketch1.addConstraint(Sketcher.Constraint("DistanceX", 28, 2, -1, 1, Q("25.977362 mm")))
sketch1.addConstraint(Sketcher.Constraint("DistanceX", 33, 2, -1, 1, Q("3.390411 mm")))
sketch1.addConstraint(Sketcher.Constraint("DistanceX", -1, 1, 37, 2, Q("10.930421 mm")))
sketch1.addConstraint(Sketcher.Constraint("DistanceX", -1, 1, 41, 2, Q("19.221431 mm")))
sketch1.addConstraint(Sketcher.Constraint("DistanceX", -1, 1, 42, 2, Q("24.045291 mm")))
sketch1.addConstraint(Sketcher.Constraint("DistanceX", -1, 1, 45, 2, Q("24.045291 mm")))
sketch1.addConstraint(Sketcher.Constraint("DistanceX", -1, 1, 48, 2, Q("24.045291 mm")))
sketch1.addConstraint(Sketcher.Constraint("DistanceY", 48, 2, -1, 1, Q("2.457341 mm")))
sketch1.addConstraint(Sketcher.Constraint("DistanceY", -1, 1, 49, 2, Q("1.91428 mm")))
sketch1.addConstraint(Sketcher.Constraint("DistanceX", -1, 1, 50, 2, Q("29.924371 mm")))
sketch1.addConstraint(Sketcher.Constraint("DistanceX", -1, 1, 51, 2, Q("32.788538 mm")))
sketch1.addConstraint(Sketcher.Constraint("DistanceX", -1, 1, 52, 2, Q("32.034809 mm")))
sketch1.addConstraint(Sketcher.Constraint("DistanceX", -1, 1, 55, 2, Q("37.16016 mm")))
sketch1.addConstraint(Sketcher.Constraint("DistanceY", -1, 1, 55, 2, Q("34.62608 mm")))
sketch1.addConstraint(Sketcher.Constraint("DistanceX", -1, 1, 58, 2, Q("37.16016 mm")))
sketch1.addConstraint(Sketcher.Constraint("DistanceY", -1, 1, 59, 2, Q("46.685731 mm")))
sketch1.addConstraint(Sketcher.Constraint("DistanceX", -1, 1, 60, 2, Q("29.924371 mm")))
sketch1.addConstraint(Sketcher.Constraint("DistanceX", -1, 1, 63, 2, Q("17.864721 mm")))
sketch1.addConstraint(Sketcher.Constraint("DistanceY", -1, 1, 64, 2, Q("46.685731 mm")))
sketch1.addConstraint(Sketcher.Constraint("DistanceX", -1, 1, 66, 2, Q("17.864721 mm")))
sketch1.addConstraint(Sketcher.Constraint("DistanceX", -1, 1, 68, 2, Q("19.221431 mm")))
sketch1.addConstraint(Sketcher.Constraint("DistanceY", -1, 1, 68, 2, Q("34.62608 mm")))
sketch1.addConstraint(Sketcher.Constraint("DistanceY", -1, 1, 70, 2, Q("26.033579 mm")))
sketch1.addConstraint(Sketcher.Constraint("DistanceX", -1, 1, 71, 2, Q("10.930421 mm")))
sketch1.addConstraint(Sketcher.Constraint("Distance", 1, Q("5.542846 mm")))
sketch1.addConstraint(Sketcher.Constraint("Distance", 2, Q("5.932946 mm")))
sketch1.addConstraint(Sketcher.Constraint("Distance", 4, Q("9.491887 mm")))
sketch1.addConstraint(Sketcher.Constraint("Distance", 5, Q("5.610083 mm")))
sketch1.addConstraint(Sketcher.Constraint("Distance", 6, Q("7.085247 mm")))
sketch1.addConstraint(Sketcher.Constraint("Distance", 13, Q("5.177403 mm")))
sketch1.addConstraint(Sketcher.Constraint("Distance", 14, Q("5.330362 mm")))
sketch1.addConstraint(Sketcher.Constraint("Distance", 16, Q("4.840768 mm")))
sketch1.addConstraint(Sketcher.Constraint("Distance", 17, Q("4.605572 mm")))
sketch1.addConstraint(Sketcher.Constraint("Distance", 18, Q("1.900594 mm")))
sketch1.addConstraint(Sketcher.Constraint("Distance", 21, Q("6.001493 mm")))
sketch1.addConstraint(Sketcher.Constraint("Distance", 22, Q("4.718696 mm")))
sketch1.addConstraint(Sketcher.Constraint("Distance", 25, Q("5.573066 mm")))
sketch1.addConstraint(Sketcher.Constraint("Distance", 26, Q("5.846974 mm")))
sketch1.addConstraint(Sketcher.Constraint("Distance", 29, Q("1.980072 mm")))
sketch1.addConstraint(Sketcher.Constraint("Distance", 31, Q("4.525963 mm")))
sketch1.addConstraint(Sketcher.Constraint("Distance", 35, Q("2.555885 mm")))
sketch1.addConstraint(Sketcher.Constraint("Distance", 39, Q("8.159783 mm")))
sketch1.addConstraint(Sketcher.Constraint("Distance", 40, Q("6.297126 mm")))
sketch1.addConstraint(Sketcher.Constraint("Distance", 42, Q("5.438927 mm")))
sketch1.addConstraint(Sketcher.Constraint("Distance", 43, Q("4.529344 mm")))
sketch1.addConstraint(Sketcher.Constraint("Distance", 44, Q("2.717606 mm")))
sketch1.addConstraint(Sketcher.Constraint("Distance", 45, Q("3.197797 mm")))
sketch1.addConstraint(Sketcher.Constraint("Distance", 48, Q("4.394953 mm")))
sketch1.addConstraint(Sketcher.Constraint("Distance", 49, Q("5.771804 mm")))
sketch1.addConstraint(Sketcher.Constraint("Distance", 51, Q("6.270005 mm")))
sketch1.addConstraint(Sketcher.Constraint("Distance", 53, Q("2.973172 mm")))
sketch1.addConstraint(Sketcher.Constraint("Distance", 55, Q("5.464398 mm")))
sketch1.addConstraint(Sketcher.Constraint("Distance", 56, Q("7.854866 mm")))
sketch1.addConstraint(Sketcher.Constraint("Distance", 58, Q("2.763682 mm")))
sketch1.addConstraint(Sketcher.Constraint("Distance", 59, Q("3.768643 mm")))
sketch1.addConstraint(Sketcher.Constraint("Distance", 60, Q("6.722983 mm")))
sketch1.addConstraint(Sketcher.Constraint("Distance", 62, Q("3.306105 mm")))
sketch1.addConstraint(Sketcher.Constraint("Distance", 64, Q("2.261183 mm")))
sketch1.addConstraint(Sketcher.Constraint("Distance", 66, Q("4.870733 mm")))
sketch1.addConstraint(Sketcher.Constraint("Distance", 68, Q("2.508905 mm")))
sketch1.addConstraint(Sketcher.Constraint("DistanceX", -1, 1, 0, 2, Q("4.900595 mm")))
sketch1.addConstraint(Sketcher.Constraint("DistanceX", 4, 2, -1, 1, Q("14.997827 mm")))
sketch1.addConstraint(Sketcher.Constraint("DistanceX", 5, 2, -1, 1, Q("17.861986 mm")))
sketch1.addConstraint(Sketcher.Constraint("DistanceX", 6, 2, -1, 1, Q("19.316724 mm")))
sketch1.addConstraint(Sketcher.Constraint("DistanceX", 7, 2, -1, 1, Q("17.861986 mm")))
sketch1.addConstraint(Sketcher.Constraint("DistanceX", 9, 2, -1, 1, Q("19.369447 mm")))
sketch1.addConstraint(Sketcher.Constraint("DistanceX", 10, 2, -1, 1, Q("24.038606 mm")))
sketch1.addConstraint(Sketcher.Constraint("DistanceX", 16, 2, -1, 1, Q("38.807783 mm")))
sketch1.addConstraint(Sketcher.Constraint("DistanceX", 20, 2, -1, 1, Q("45.749934 mm")))
sketch1.addConstraint(Sketcher.Constraint("DistanceX", 25, 2, -1, 1, Q("40.323088 mm")))
sketch1.addConstraint(Sketcher.Constraint("DistanceX", 29, 2, -1, 1, Q("24.038606 mm")))
sketch1.addConstraint(Sketcher.Constraint("DistanceX", 30, 2, -1, 1, Q("17.861986 mm")))
sketch1.addConstraint(Sketcher.Constraint("DistanceX", 31, 2, -1, 1, Q("13.490366 mm")))
sketch1.addConstraint(Sketcher.Constraint("DistanceX", 32, 2, -1, 1, Q("9.036702 mm")))
sketch1.addConstraint(Sketcher.Constraint("DistanceX", -1, 1, 35, 2, Q("8.987795 mm")))
sketch1.addConstraint(Sketcher.Constraint("DistanceX", -1, 1, 36, 2, Q("8.518493 mm")))
sketch1.addConstraint(Sketcher.Constraint("DistanceX", -1, 1, 38, 2, Q("13.191605 mm")))
sketch1.addConstraint(Sketcher.Constraint("DistanceX", -1, 1, 39, 2, Q("14.849806 mm")))
sketch1.addConstraint(Sketcher.Constraint("DistanceX", -1, 1, 40, 2, Q("16.055772 mm")))
sketch1.addConstraint(Sketcher.Constraint("DistanceX", -1, 1, 43, 2, Q("27.813932 mm")))
sketch1.addConstraint(Sketcher.Constraint("DistanceX", -1, 1, 53, 2, Q("33.542265 mm")))
sketch1.addConstraint(Sketcher.Constraint("DistanceX", -1, 1, 56, 2, Q("39.371106 mm")))
pad1 = doc.addObject("PartDesign::Pad", "Pad")
body.addObject(pad1)
pad1.Profile = sketch1
pad1.Length = Q("0.5 in")

# Sketch on XZ plane
sketch2 = doc.addObject("Sketcher::SketchObject", "Sketch001")
body.addObject(sketch2)
sketch2.AttachmentSupport = (doc.XZ_Plane, [""])
sketch2.MapMode = "FlatFace"
sketch2.AttachmentOffset = App.Placement(Vector(0, 0, 0.5 * 25.4), App.Rotation())
sketch2.addGeometry(Part.LineSegment(Vector(3, 6, 0), Vector(3, 0, 0)), False)
sketch2.addGeometry(Part.LineSegment(Vector(3, 0, 0), Vector(14, 0, 0)), False)
sketch2.addGeometry(Part.LineSegment(Vector(14, 0, 0), Vector(14, 6, 0)), False)
sketch2.addGeometry(Part.LineSegment(Vector(14, 6, 0), Vector(3, 6, 0)), False)
sketch2.addConstraint(Sketcher.Constraint("Coincident", 0, 2, 1, 1))
sketch2.addConstraint(Sketcher.Constraint("Coincident", 1, 2, 2, 1))
sketch2.addConstraint(Sketcher.Constraint("Coincident", 2, 2, 3, 1))
sketch2.addConstraint(Sketcher.Constraint("Coincident", 3, 2, 0, 1))
sketch2.addConstraint(Sketcher.Constraint("Vertical", 0))
sketch2.addConstraint(Sketcher.Constraint("Horizontal", 1))
sketch2.addConstraint(Sketcher.Constraint("Vertical", 2))
sketch2.addConstraint(Sketcher.Constraint("Horizontal", 3))
sketch2.addConstraint(Sketcher.Constraint("PointOnObject", 0, 2, -1))
sketch2.addConstraint(Sketcher.Constraint("DistanceX", 1, 1, 1, 2, Q("10.860083 mm")))
sketch2.addConstraint(Sketcher.Constraint("DistanceY", 0, 2, 0, 1, Q("6.205762 mm")))
sketch2.addConstraint(Sketcher.Constraint("DistanceX", -1, 1, 0, 2, Q("3.10288 mm")))
pad2 = doc.addObject("PartDesign::Pad", "Pad001")
body.addObject(pad2)
pad2.Profile = sketch2
pad2.Length = Q("0.5 in")

doc.recompute()
